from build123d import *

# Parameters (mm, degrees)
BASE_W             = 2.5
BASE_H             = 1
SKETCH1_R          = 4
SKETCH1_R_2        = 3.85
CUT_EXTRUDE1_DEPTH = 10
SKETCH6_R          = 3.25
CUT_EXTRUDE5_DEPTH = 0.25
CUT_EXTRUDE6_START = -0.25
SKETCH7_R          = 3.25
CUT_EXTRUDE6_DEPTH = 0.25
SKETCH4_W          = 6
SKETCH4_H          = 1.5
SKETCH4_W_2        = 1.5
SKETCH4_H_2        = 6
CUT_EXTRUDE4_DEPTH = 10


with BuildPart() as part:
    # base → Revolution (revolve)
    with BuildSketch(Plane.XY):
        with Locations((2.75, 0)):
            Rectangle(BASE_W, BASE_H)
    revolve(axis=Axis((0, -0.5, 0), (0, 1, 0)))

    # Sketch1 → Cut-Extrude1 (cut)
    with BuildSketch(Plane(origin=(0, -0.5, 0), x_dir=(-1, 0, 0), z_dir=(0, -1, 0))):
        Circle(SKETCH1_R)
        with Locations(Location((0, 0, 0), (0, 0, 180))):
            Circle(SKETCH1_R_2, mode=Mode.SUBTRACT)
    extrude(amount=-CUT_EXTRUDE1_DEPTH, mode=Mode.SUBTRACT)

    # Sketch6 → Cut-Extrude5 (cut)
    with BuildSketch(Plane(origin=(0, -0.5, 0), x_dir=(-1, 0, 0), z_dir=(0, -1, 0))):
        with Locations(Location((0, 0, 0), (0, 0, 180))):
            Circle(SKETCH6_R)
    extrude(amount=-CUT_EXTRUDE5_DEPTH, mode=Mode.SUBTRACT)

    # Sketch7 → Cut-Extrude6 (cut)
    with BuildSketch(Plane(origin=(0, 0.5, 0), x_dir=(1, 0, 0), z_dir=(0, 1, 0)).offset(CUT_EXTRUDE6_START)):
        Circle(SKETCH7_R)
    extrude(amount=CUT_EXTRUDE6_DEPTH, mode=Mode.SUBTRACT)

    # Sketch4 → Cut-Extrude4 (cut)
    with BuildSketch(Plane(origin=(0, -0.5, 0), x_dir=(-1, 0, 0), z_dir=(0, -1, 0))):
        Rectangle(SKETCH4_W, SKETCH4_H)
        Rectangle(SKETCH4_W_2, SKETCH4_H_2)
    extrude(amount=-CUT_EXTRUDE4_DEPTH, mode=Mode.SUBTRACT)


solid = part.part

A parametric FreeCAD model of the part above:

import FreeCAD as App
import Part
import Sketcher

doc = App.newDocument("Part")
body = doc.addObject("PartDesign::Body", "Body")

sketch1 = body.newObject("Sketcher::SketchObject", "Sketch")
sketch1.AttachmentSupport = (doc.getObject("XY_Plane"), [""])
sketch1.MapMode = "FlatFace"
sketch1.addGeometry(Part.LineSegment(App.Vector(1.5, 0.5, 0), App.Vector(1.5, -0.5, 0)), False)
sketch1.addGeometry(Part.LineSegment(App.Vector(1.5, -0.5, 0), App.Vector(4, -0.5, 0)), False)
sketch1.addGeometry(Part.LineSegment(App.Vector(4, -0.5, 0), App.Vector(4, 0.5, 0)), False)
sketch1.addGeometry(Part.LineSegment(App.Vector(4, 0.5, 0), App.Vector(1.5, 0.5, 0)), False)
sketch1.addConstraint(Sketcher.Constraint("Coincident", 0, 2, 1, 1))
sketch1.addConstraint(Sketcher.Constraint("Coincident", 1, 2, 2, 1))
sketch1.addConstraint(Sketcher.Constraint("Coincident", 2, 2, 3, 1))
sketch1.addConstraint(Sketcher.Constraint("Coincident", 3, 2, 0, 1))
sketch1.addConstraint(Sketcher.Constraint("Vertical", 0))
sketch1.addConstraint(Sketcher.Constraint("Horizontal", 1))
sketch1.addConstraint(Sketcher.Constraint("Vertical", 2))
sketch1.addConstraint(Sketcher.Constraint("Horizontal", 3))
sketch1.addConstraint(Sketcher.Constraint("DistanceY", 0, 2, 0, 1, 1.0))
sketch1.addConstraint(Sketcher.Constraint("DistanceX", 1, 1, 1, 2, 2.5))
sketch1.addConstraint(Sketcher.Constraint("DistanceX", -1, 1, 1, 2, 4.0))
sketch1.addConstraint(Sketcher.Constraint("DistanceY", 0, 2, -1, 1, 0.5))
revolution = body.newObject("PartDesign::Revolution", "Revolution")
revolution.Profile = sketch1
revolution.ReferenceAxis = (sketch1, ["V_Axis"])
revolution.Angle = 360

sketch2 = body.newObject("Sketcher::SketchObject", "Sketch001")
sketch2.AttachmentSupport = (doc.getObject("XZ_Plane"), [""])
sketch2.MapMode = "FlatFace"
sketch2.AttachmentOffset = App.Placement(App.Vector(0, 0, 0.5), App.Rotation())
sketch2.addGeometry(Part.Circle(App.Vector(0, 0, 0), App.Vector(0, 0, 1), 4), False)
sketch2.addGeometry(Part.Circle(App.Vector(0, 0, 0), App.Vector(0, 0, 1), 3.9), False)
sketch2.addConstraint(Sketcher.Constraint("Coincident", 0, 3, -1, 1))
sketch2.addConstraint(Sketcher.Constraint("Coincident", 1, 3, -1, 1))
sketch2.addConstraint(Sketcher.Constraint("Diameter", 0, 8.0))
sketch2.addConstraint(Sketcher.Constraint("Diameter", 1, 7.7))
pocket1 = body.newObject("PartDesign::Pocket", "Pocket")
pocket1.Profile = sketch2
pocket1.Length = 10

sketch3 = body.newObject("Sketcher::SketchObject", "Sketch002")
sketch3.AttachmentSupport = (doc.getObject("XZ_Plane"), [""])
sketch3.MapMode = "FlatFace"
sketch3.AttachmentOffset = App.Placement(App.Vector(0, 0, 0.5), App.Rotation())
sketch3.addGeometry(Part.Circle(App.Vector(0, 0, 0), App.Vector(0, 0, 1), 3.2), False)
sketch3.addConstraint(Sketcher.Constraint("Coincident", 0, 3, -1, 1))
sketch3.addConstraint(Sketcher.Constraint("Diameter", 0, 6.5))
pocket2 = body.newObject("PartDesign::Pocket", "Pocket001")
pocket2.Profile = sketch3
pocket2.Length = 0.25

sketch4 = body.newObject("Sketcher::SketchObject", "Sketch003")
sketch4.AttachmentSupport = (doc.getObject("XZ_Plane"), [""])
sketch4.MapMode = "FlatFace"
sketch4.AttachmentOffset = App.Placement(App.Vector(0, 0, -0.25), App.Rotation())
sketch4.addGeometry(Part.Circle(App.Vector(0, 0, 0), App.Vector(0, 0, 1), 3.2), False)
sketch4.addConstraint(Sketcher.Constraint("Coincident", 0, 3, -1, 1))
sketch4.addConstraint(Sketcher.Constraint("Diameter", 0, 6.5))
pocket3 = body.newObject("PartDesign::Pocket", "Pocket002")
pocket3.Profile = sketch4
pocket3.Length = 0.25

sketch5 = body.newObject("Sketcher::SketchObject", "Sketch004")
sketch5.AttachmentSupport = (doc.getObject("XZ_Plane"), [""])
sketch5.MapMode = "FlatFace"
sketch5.AttachmentOffset = App.Placement(App.Vector(0, 0, 0.5), App.Rotation())
sketch5.addGeometry(Part.LineSegment(App.Vector(3, -0.8, 0), App.Vector(3, 0.8, 0)), False)
sketch5.addGeometry(Part.LineSegment(App.Vector(3, 0.8, 0), App.Vector(0.8, 0.8, 0)), False)
sketch5.addGeometry(Part.LineSegment(App.Vector(0.8, 0.8, 0), App.Vector(0.8, 3, 0)), False)
sketch5.addGeometry(Part.LineSegment(App.Vector(0.8, 3, 0), App.Vector(-0.8, 3, 0)), False)
sketch5.addGeometry(Part.LineSegment(App.Vector(-0.8, 3, 0), App.Vector(-0.8, 0.8, 0)), False)
sketch5.addGeometry(Part.LineSegment(App.Vector(-0.8, 0.8, 0), App.Vector(-3, 0.8, 0)), False)
sketch5.addGeometry(Part.LineSegment(App.Vector(-3, 0.8, 0), App.Vector(-3, -0.8, 0)), False)
sketch5.addGeometry(Part.LineSegment(App.Vector(-3, -0.8, 0), App.Vector(-0.8, -0.8, 0)), False)
sketch5.addGeometry(Part.LineSegment(App.Vector(-0.8, -0.8, 0), App.Vector(-0.8, -3, 0)), False)
sketch5.addGeometry(Part.LineSegment(App.Vector(-0.8, -3, 0), App.Vector(0.8, -3, 0)), False)
sketch5.addGeometry(Part.LineSegment(App.Vector(0.8, -3, 0), App.Vector(0.8, -0.8, 0)), False)
sketch5.addGeometry(Part.LineSegment(App.Vector(0.8, -0.8, 0), App.Vector(3, -0.8, 0)), False)
sketch5.addConstraint(Sketcher.Constraint("Coincident", 0, 2, 1, 1))
sketch5.addConstraint(Sketcher.Constraint("Coincident", 1, 2, 2, 1))
sketch5.addConstraint(Sketcher.Constraint("Coincident", 2, 2, 3, 1))
sketch5.addConstraint(Sketcher.Constraint("Coincident", 3, 2, 4, 1))
sketch5.addConstraint(Sketcher.Constraint("Coincident", 4, 2, 5, 1))
sketch5.addConstraint(Sketcher.Constraint("Coincident", 5, 2, 6, 1))
sketch5.addConstraint(Sketcher.Constraint("Coincident", 6, 2, 7, 1))
sketch5.addConstraint(Sketcher.Constraint("Coincident", 7, 2, 8, 1))
sketch5.addConstraint(Sketcher.Constraint("Coincident", 8, 2, 9, 1))
sketch5.addConstraint(Sketcher.Constraint("Coincident", 9, 2, 10, 1))
sketch5.addConstraint(Sketcher.Constraint("Coincident", 10, 2, 11, 1))
sketch5.addConstraint(Sketcher.Constraint("Coincident", 11, 2, 0, 1))
sketch5.addConstraint(Sketcher.Constraint("Vertical", 0))
sketch5.addConstraint(Sketcher.Constraint("Horizontal", 1))
sketch5.addConstraint(Sketcher.Constraint("Vertical", 2))
sketch5.addConstraint(Sketcher.Constraint("Horizontal", 3))
sketch5.addConstraint(Sketcher.Constraint("Vertical", 4))
sketch5.addConstraint(Sketcher.Constraint("Horizontal", 5))
sketch5.addConstraint(Sketcher.Constraint("Vertical", 6))
sketch5.addConstraint(Sketcher.Constraint("Horizontal", 7))
sketch5.addConstraint(Sketcher.Constraint("Vertical", 8))
sketch5.addConstraint(Sketcher.Constraint("Horizontal", 9))
sketch5.addConstraint(Sketcher.Constraint("Vertical", 10))
sketch5.addConstraint(Sketcher.Constraint("Horizontal", 11))
sketch5.addConstraint(Sketcher.Constraint("Symmetric", 0, 2, 6, 2, -1, 1))
sketch5.addConstraint(Sketcher.Constraint("Symmetric", 2, 2, 8, 2, -1, 1))
sketch5.addConstraint(Sketcher.Constraint("Symmetric", 4, 2, 10, 2, -1, 1))
sketch5.addConstraint(Sketcher.Constraint("Symmetric", 1, 2, 4, 2, -2))
sketch5.addConstraint(Sketcher.Constraint("Equal", 9, 0))
sketch5.addConstraint(Sketcher.Constraint("Equal", 11, 2))
sketch5.addConstraint(Sketcher.Constraint("DistanceX", 3, 2, 3, 1, 1.5))
sketch5.addConstraint(Sketcher.Constraint("DistanceX", -1, 1, 0, 2, 3.0))
pocket4 = body.newObject("PartDesign::Pocket", "Pocket003")
pocket4.Profile = sketch5
pocket4.Length = 10

doc.recompute()
